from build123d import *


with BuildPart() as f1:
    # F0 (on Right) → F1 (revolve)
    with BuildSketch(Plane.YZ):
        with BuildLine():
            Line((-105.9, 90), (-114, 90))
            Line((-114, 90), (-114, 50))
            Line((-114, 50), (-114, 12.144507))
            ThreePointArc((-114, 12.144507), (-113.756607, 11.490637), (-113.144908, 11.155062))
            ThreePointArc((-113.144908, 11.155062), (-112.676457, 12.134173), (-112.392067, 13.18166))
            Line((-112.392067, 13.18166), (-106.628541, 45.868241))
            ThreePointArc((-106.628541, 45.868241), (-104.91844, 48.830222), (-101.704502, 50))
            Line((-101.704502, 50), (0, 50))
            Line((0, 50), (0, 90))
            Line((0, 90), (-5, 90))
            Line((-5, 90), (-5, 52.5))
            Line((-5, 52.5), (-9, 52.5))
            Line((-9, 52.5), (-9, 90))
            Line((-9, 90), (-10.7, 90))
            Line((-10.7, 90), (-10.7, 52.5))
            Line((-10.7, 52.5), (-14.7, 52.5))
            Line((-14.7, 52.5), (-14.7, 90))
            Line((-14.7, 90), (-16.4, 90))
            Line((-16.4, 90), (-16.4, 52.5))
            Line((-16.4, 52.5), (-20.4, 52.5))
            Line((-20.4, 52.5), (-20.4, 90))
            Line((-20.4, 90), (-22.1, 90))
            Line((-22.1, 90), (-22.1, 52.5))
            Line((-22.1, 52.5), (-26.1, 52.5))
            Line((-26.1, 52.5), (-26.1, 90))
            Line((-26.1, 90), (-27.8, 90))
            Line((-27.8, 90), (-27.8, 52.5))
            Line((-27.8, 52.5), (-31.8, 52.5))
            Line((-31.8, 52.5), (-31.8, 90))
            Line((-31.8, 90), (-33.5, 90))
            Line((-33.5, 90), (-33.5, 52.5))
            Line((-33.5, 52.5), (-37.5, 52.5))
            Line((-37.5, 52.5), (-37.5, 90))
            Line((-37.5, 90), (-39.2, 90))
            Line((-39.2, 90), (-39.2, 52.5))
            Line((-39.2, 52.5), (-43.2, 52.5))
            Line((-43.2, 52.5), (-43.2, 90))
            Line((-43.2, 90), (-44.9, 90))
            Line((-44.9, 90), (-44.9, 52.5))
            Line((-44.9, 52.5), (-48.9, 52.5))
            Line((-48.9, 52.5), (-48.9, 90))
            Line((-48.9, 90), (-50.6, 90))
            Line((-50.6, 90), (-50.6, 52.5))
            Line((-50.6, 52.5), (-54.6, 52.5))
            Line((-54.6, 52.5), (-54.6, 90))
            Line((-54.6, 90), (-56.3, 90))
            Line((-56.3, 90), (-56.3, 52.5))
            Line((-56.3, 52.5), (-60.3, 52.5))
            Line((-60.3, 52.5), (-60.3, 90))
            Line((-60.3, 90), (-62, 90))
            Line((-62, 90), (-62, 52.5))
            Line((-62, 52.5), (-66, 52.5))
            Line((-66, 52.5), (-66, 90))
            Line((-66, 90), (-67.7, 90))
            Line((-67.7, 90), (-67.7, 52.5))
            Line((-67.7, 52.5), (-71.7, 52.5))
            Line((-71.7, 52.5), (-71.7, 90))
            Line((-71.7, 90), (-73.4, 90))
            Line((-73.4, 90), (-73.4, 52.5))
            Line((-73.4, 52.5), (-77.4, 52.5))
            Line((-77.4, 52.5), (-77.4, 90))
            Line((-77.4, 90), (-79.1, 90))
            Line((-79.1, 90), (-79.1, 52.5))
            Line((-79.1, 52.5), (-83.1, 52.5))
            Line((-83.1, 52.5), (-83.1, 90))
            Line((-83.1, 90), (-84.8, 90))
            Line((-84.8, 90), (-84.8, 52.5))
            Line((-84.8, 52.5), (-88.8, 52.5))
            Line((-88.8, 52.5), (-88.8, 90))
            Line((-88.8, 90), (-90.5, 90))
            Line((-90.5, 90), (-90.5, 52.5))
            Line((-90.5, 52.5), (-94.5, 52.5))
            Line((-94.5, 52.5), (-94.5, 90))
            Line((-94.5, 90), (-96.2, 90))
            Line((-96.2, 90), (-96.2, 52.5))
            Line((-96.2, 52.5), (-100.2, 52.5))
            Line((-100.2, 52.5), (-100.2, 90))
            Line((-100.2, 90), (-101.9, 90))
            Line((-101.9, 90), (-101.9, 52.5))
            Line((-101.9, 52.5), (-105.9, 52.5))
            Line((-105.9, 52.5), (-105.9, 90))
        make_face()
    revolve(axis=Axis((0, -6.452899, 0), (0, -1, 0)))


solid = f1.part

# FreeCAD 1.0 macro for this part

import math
import FreeCAD as App
import Part
import Sketcher
from FreeCAD import Vector
Q = App.Units.Quantity

doc = App.newDocument("Part")
body = doc.addObject("PartDesign::Body", "Body")

sketch1 = body.newObject("Sketcher::SketchObject", "Sketch")
sketch1.AttachmentSupport = (doc.getObject("YZ_Plane"), [""])
sketch1.MapMode = "FlatFace"
sketch1.addGeometry(Part.LineSegment(Vector(-105.9, 90, 0), Vector(-114, 90, 0)), False)
sketch1.addGeometry(Part.LineSegment(Vector(-114, 90, 0), Vector(-114, 12.1, 0)), False)
sketch1.addGeometry(Part.ArcOfCircle(Part.Circle(Vector(-113, 12.1, 0), Vector(0, 0, 1), 1), math.radians(180), math.radians(262)), False)
sketch1.addGeometry(Part.ArcOfCircle(Part.Circle(Vector(-118.3, 14.2, 0), Vector(0, 0, 1), 6), math.radians(-31), math.radians(-10)), False)
sketch1.addGeometry(Part.LineSegment(Vector(-112.4, 13.2, 0), Vector(-106.6, 45.9, 0)), False)
sketch1.addGeometry(Part.ArcOfCircle(Part.Circle(Vector(-101.7, 45, 0), Vector(0, 0, 1), 5), math.radians(90), math.radians(170)), False)
sketch1.addGeometry(Part.LineSegment(Vector(-101.7, 50, 0), Vector(0, 50, 0)), False)
sketch1.addGeometry(Part.LineSegment(Vector(0, 50, 0), Vector(0, 90, 0)), False)
sketch1.addGeometry(Part.LineSegment(Vector(0, 90, 0), Vector(-5, 90, 0)), False)
sketch1.addGeometry(Part.LineSegment(Vector(-5, 90, 0), Vector(-5, 52.5, 0)), False)
sketch1.addGeometry(Part.LineSegment(Vector(-5, 52.5, 0), Vector(-9, 52.5, 0)), False)
sketch1.addGeometry(Part.LineSegment(Vector(-9, 52.5, 0), Vector(-9, 90, 0)), False)
sketch1.addGeometry(Part.LineSegment(Vector(-9, 90, 0), Vector(-10.7, 90, 0)), False)
sketch1.addGeometry(Part.LineSegment(Vector(-10.7, 90, 0), Vector(-10.7, 52.5, 0)), False)
sketch1.addGeometry(Part.LineSegment(Vector(-10.7, 52.5, 0), Vector(-14.7, 52.5, 0)), False)
sketch1.addGeometry(Part.LineSegment(Vector(-14.7, 52.5, 0), Vector(-14.7, 90, 0)), False)
sketch1.addGeometry(Part.LineSegment(Vector(-14.7, 90, 0), Vector(-16.4, 90, 0)), False)
sketch1.addGeometry(Part.LineSegment(Vector(-16.4, 90, 0), Vector(-16.4, 52.5, 0)), False)
sketch1.addGeometry(Part.LineSegment(Vector(-16.4, 52.5, 0), Vector(-20.4, 52.5, 0)), False)
sketch1.addGeometry(Part.LineSegment(Vector(-20.4, 52.5, 0), Vector(-20.4, 90, 0)), False)
sketch1.addGeometry(Part.LineSegment(Vector(-20.4, 90, 0), Vector(-22.1, 90, 0)), False)
sketch1.addGeometry(Part.LineSegment(Vector(-22.1, 90, 0), Vector(-22.1, 52.5, 0)), False)
sketch1.addGeometry(Part.LineSegment(Vector(-22.1, 52.5, 0), Vector(-26.1, 52.5, 0)), False)
sketch1.addGeometry(Part.LineSegment(Vector(-26.1, 52.5, 0), Vector(-26.1, 90, 0)), False)
sketch1.addGeometry(Part.LineSegment(Vector(-26.1, 90, 0), Vector(-27.8, 90, 0)), False)
sketch1.addGeometry(Part.LineSegment(Vector(-27.8, 90, 0), Vector(-27.8, 52.5, 0)), False)
sketch1.addGeometry(Part.LineSegment(Vector(-27.8, 52.5, 0), Vector(-31.8, 52.5, 0)), False)
sketch1.addGeometry(Part.LineSegment(Vector(-31.8, 52.5, 0), Vector(-31.8, 90, 0)), False)
sketch1.addGeometry(Part.LineSegment(Vector(-31.8, 90, 0), Vector(-33.5, 90, 0)), False)
sketch1.addGeometry(Part.LineSegment(Vector(-33.5, 90, 0), Vector(-33.5, 52.5, 0)), False)
sketch1.addGeometry(Part.LineSegment(Vector(-33.5, 52.5, 0), Vector(-37.5, 52.5, 0)), False)
sketch1.addGeometry(Part.LineSegment(Vector(-37.5, 52.5, 0), Vector(-37.5, 90, 0)), False)
sketch1.addGeometry(Part.LineSegment(Vector(-37.5, 90, 0), Vector(-39.2, 90, 0)), False)
sketch1.addGeometry(Part.LineSegment(Vector(-39.2, 90, 0), Vector(-39.2, 52.5, 0)), False)
sketch1.addGeometry(Part.LineSegment(Vector(-39.2, 52.5, 0), Vector(-43.2, 52.5, 0)), False)
sketch1.addGeometry(Part.LineSegment(Vector(-43.2, 52.5, 0), Vector(-43.2, 90, 0)), False)
sketch1.addGeometry(Part.LineSegment(Vector(-43.2, 90, 0), Vector(-44.9, 90, 0)), False)
sketch1.addGeometry(Part.LineSegment(Vector(-44.9, 90, 0), Vector(-44.9, 52.5, 0)), False)
sketch1.addGeometry(Part.LineSegment(Vector(-44.9, 52.5, 0), Vector(-48.9, 52.5, 0)), False)
sketch1.addGeometry(Part.LineSegment(Vector(-48.9, 52.5, 0), Vector(-48.9, 90, 0)), False)
sketch1.addGeometry(Part.LineSegment(Vector(-48.9, 90, 0), Vector(-50.6, 90, 0)), False)
sketch1.addGeometry(Part.LineSegment(Vector(-50.6, 90, 0), Vector(-50.6, 52.5, 0)), False)
sketch1.addGeometry(Part.LineSegment(Vector(-50.6, 52.5, 0), Vector(-54.6, 52.5, 0)), False)
sketch1.addGeometry(Part.LineSegment(Vector(-54.6, 52.5, 0), Vector(-54.6, 90, 0)), False)
sketch1.addGeometry(Part.LineSegment(Vector(-54.6, 90, 0), Vector(-56.3, 90, 0)), False)
sketch1.addGeometry(Part.LineSegment(Vector(-56.3, 90, 0), Vector(-56.3, 52.5, 0)), False)
sketch1.addGeometry(Part.LineSegment(Vector(-56.3, 52.5, 0), Vector(-60.3, 52.5, 0)), False)
sketch1.addGeometry(Part.LineSegment(Vector(-60.3, 52.5, 0), Vector(-60.3, 90, 0)), False)
sketch1.addGeometry(Part.LineSegment(Vector(-60.3, 90, 0), Vector(-62, 90, 0)), False)
sketch1.addGeometry(Part.LineSegment(Vector(-62, 90, 0), Vector(-62, 52.5, 0)), False)
sketch1.addGeometry(Part.LineSegment(Vector(-62, 52.5, 0), Vector(-66, 52.5, 0)), False)
sketch1.addGeometry(Part.LineSegment(Vector(-66, 52.5, 0), Vector(-66, 90, 0)), False)
sketch1.addGeometry(Part.LineSegment(Vector(-66, 90, 0), Vector(-67.7, 90, 0)), False)
sketch1.addGeometry(Part.LineSegment(Vector(-67.7, 90, 0), Vector(-67.7, 52.5, 0)), False)
sketch1.addGeometry(Part.LineSegment(Vector(-67.7, 52.5, 0), Vector(-71.7, 52.5, 0)), False)
sketch1.addGeometry(Part.LineSegment(Vector(-71.7, 52.5, 0), Vector(-71.7, 90, 0)), False)
sketch1.addGeometry(Part.LineSegment(Vector(-71.7, 90, 0), Vector(-73.4, 90, 0)), False)
sketch1.addGeometry(Part.LineSegment(Vector(-73.4, 90, 0), Vector(-73.4, 52.5, 0)), False)
sketch1.addGeometry(Part.LineSegment(Vector(-73.4, 52.5, 0), Vector(-77.4, 52.5, 0)), False)
sketch1.addGeometry(Part.LineSegment(Vector(-77.4, 52.5, 0), Vector(-77.4, 90, 0)), False)
sketch1.addGeometry(Part.LineSegment(Vector(-77.4, 90, 0), Vector(-79.1, 90, 0)), False)
sketch1.addGeometry(Part.LineSegment(Vector(-79.1, 90, 0), Vector(-79.1, 52.5, 0)), False)
sketch1.addGeometry(Part.LineSegment(Vector(-79.1, 52.5, 0), Vector(-83.1, 52.5, 0)), False)
sketch1.addGeometry(Part.LineSegment(Vector(-83.1, 52.5, 0), Vector(-83.1, 90, 0)), False)
sketch1.addGeometry(Part.LineSegment(Vector(-83.1, 90, 0), Vector(-84.8, 90, 0)), False)
sketch1.addGeometry(Part.LineSegment(Vector(-84.8, 90, 0), Vector(-84.8, 52.5, 0)), False)
sketch1.addGeometry(Part.LineSegment(Vector(-84.8, 52.5, 0), Vector(-88.8, 52.5, 0)), False)
sketch1.addGeometry(Part.LineSegment(Vector(-88.8, 52.5, 0), Vector(-88.8, 90, 0)), False)
sketch1.addGeometry(Part.LineSegment(Vector(-88.8, 90, 0), Vector(-90.5, 90, 0)), False)
sketch1.addGeometry(Part.LineSegment(Vector(-90.5, 90, 0), Vector(-90.5, 52.5, 0)), False)
sketch1.addGeometry(Part.LineSegment(Vector(-90.5, 52.5, 0), Vector(-94.5, 52.5, 0)), False)
sketch1.addGeometry(Part.LineSegment(Vector(-94.5, 52.5, 0), Vector(-94.5, 90, 0)), False)
sketch1.addGeometry(Part.LineSegment(Vector(-94.5, 90, 0), Vector(-96.2, 90, 0)), False)
sketch1.addGeometry(Part.LineSegment(Vector(-96.2, 90, 0), Vector(-96.2, 52.5, 0)), False)
sketch1.addGeometry(Part.LineSegment(Vector(-96.2, 52.5, 0), Vector(-100.2, 52.5, 0)), False)
sketch1.addGeometry(Part.LineSegment(Vector(-100.2, 52.5, 0), Vector(-100.2, 90, 0)), False)
sketch1.addGeometry(Part.LineSegment(Vector(-100.2, 90, 0), Vector(-101.9, 90, 0)), False)
sketch1.addGeometry(Part.LineSegment(Vector(-101.9, 90, 0), Vector(-101.9, 52.5, 0)), False)
sketch1.addGeometry(Part.LineSegment(Vector(-101.9, 52.5, 0), Vector(-105.9, 52.5, 0)), False)
sketch1.addGeometry(Part.LineSegment(Vector(-105.9, 52.5, 0), Vector(-105.9, 90, 0)), False)
sketch1.addConstraint(Sketcher.Constraint("Coincident", 0, 2, 1, 1))
sketch1.addConstraint(Sketcher.Constraint("Tangent", 1, 2, 2, 1))
sketch1.addConstraint(Sketcher.Constraint("Coincident", 2, 2, 3, 1))
sketch1.addConstraint(Sketcher.Constraint("Tangent", 3, 2, 4, 1))
sketch1.addConstraint(Sketcher.Constraint("Tangent", 4, 2, 5, 2))
sketch1.addConstraint(Sketcher.Constraint("Tangent", 5, 1, 6, 1))
sketch1.addConstraint(Sketcher.Constraint("Coincident", 6, 2, 7, 1))
sketch1.addConstraint(Sketcher.Constraint("Coincident", 7, 2, 8, 1))
sketch1.addConstraint(Sketcher.Constraint("Coincident", 8, 2, 9, 1))
sketch1.addConstraint(Sketcher.Constraint("Coincident", 9, 2, 10, 1))
sketch1.addConstraint(Sketcher.Constraint("Coincident", 10, 2, 11, 1))
sketch1.addConstraint(Sketcher.Constraint("Coincident", 11, 2, 12, 1))
sketch1.addConstraint(Sketcher.Constraint("Coincident", 12, 2, 13, 1))
sketch1.addConstraint(Sketcher.Constraint("Coincident", 13, 2, 14, 1))
sketch1.addConstraint(Sketcher.Constraint("Coincident", 14, 2, 15, 1))
sketch1.addConstraint(Sketcher.Constraint("Coincident", 15, 2, 16, 1))
sketch1.addConstraint(Sketcher.Constraint("Coincident", 16, 2, 17, 1))
sketch1.addConstraint(Sketcher.Constraint("Coincident", 17, 2, 18, 1))
sketch1.addConstraint(Sketcher.Constraint("Coincident", 18, 2, 19, 1))
sketch1.addConstraint(Sketcher.Constraint("Coincident", 19, 2, 20, 1))
sketch1.addConstraint(Sketcher.Constraint("Coincident", 20, 2, 21, 1))
sketch1.addConstraint(Sketcher.Constraint("Coincident", 21, 2, 22, 1))
sketch1.addConstraint(Sketcher.Constraint("Coincident", 22, 2, 23, 1))
sketch1.addConstraint(Sketcher.Constraint("Coincident", 23, 2, 24, 1))
sketch1.addConstraint(Sketcher.Constraint("Coincident", 24, 2, 25, 1))
sketch1.addConstraint(Sketcher.Constraint("Coincident", 25, 2, 26, 1))
sketch1.addConstraint(Sketcher.Constraint("Coincident", 26, 2, 27, 1))
sketch1.addConstraint(Sketcher.Constraint("Coincident", 27, 2, 28, 1))
sketch1.addConstraint(Sketcher.Constraint("Coincident", 28, 2, 29, 1))
sketch1.addConstraint(Sketcher.Constraint("Coincident", 29, 2, 30, 1))
sketch1.addConstraint(Sketcher.Constraint("Coincident", 30, 2, 31, 1))
sketch1.addConstraint(Sketcher.Constraint("Coincident", 31, 2, 32, 1))
sketch1.addConstraint(Sketcher.Constraint("Coincident", 32, 2, 33, 1))
sketch1.addConstraint(Sketcher.Constraint("Coincident", 33, 2, 34, 1))
sketch1.addConstraint(Sketcher.Constraint("Coincident", 34, 2, 35, 1))
sketch1.addConstraint(Sketcher.Constraint("Coincident", 35, 2, 36, 1))
sketch1.addConstraint(Sketcher.Constraint("Coincident", 36, 2, 37, 1))
sketch1.addConstraint(Sketcher.Constraint("Coincident", 37, 2, 38, 1))
sketch1.addConstraint(Sketcher.Constraint("Coincident", 38, 2, 39, 1))
sketch1.addConstraint(Sketcher.Constraint("Coincident", 39, 2, 40, 1))
sketch1.addConstraint(Sketcher.Constraint("Coincident", 40, 2, 41, 1))
sketch1.addConstraint(Sketcher.Constraint("Coincident", 41, 2, 42, 1))
sketch1.addConstraint(Sketcher.Constraint("Coincident", 42, 2, 43, 1))
sketch1.addConstraint(Sketcher.Constraint("Coincident", 43, 2, 44, 1))
sketch1.addConstraint(Sketcher.Constraint("Coincident", 44, 2, 45, 1))
sketch1.addConstraint(Sketcher.Constraint("Coincident", 45, 2, 46, 1))
sketch1.addConstraint(Sketcher.Constraint("Coincident", 46, 2, 47, 1))
sketch1.addConstraint(Sketcher.Constraint("Coincident", 47, 2, 48, 1))
sketch1.addConstraint(Sketcher.Constraint("Coincident", 48, 2, 49, 1))
sketch1.addConstraint(Sketcher.Constraint("Coincident", 49, 2, 50, 1))
sketch1.addConstraint(Sketcher.Constraint("Coincident", 50, 2, 51, 1))
sketch1.addConstraint(Sketcher.Constraint("Coincident", 51, 2, 52, 1))
sketch1.addConstraint(Sketcher.Constraint("Coincident", 52, 2, 53, 1))
sketch1.addConstraint(Sketcher.Constraint("Coincident", 53, 2, 54, 1))
sketch1.addConstraint(Sketcher.Constraint("Coincident", 54, 2, 55, 1))
sketch1.addConstraint(Sketcher.Constraint("Coincident", 55, 2, 56, 1))
sketch1.addConstraint(Sketcher.Constraint("Coincident", 56, 2, 57, 1))
sketch1.addConstraint(Sketcher.Constraint("Coincident", 57, 2, 58, 1))
sketch1.addConstraint(Sketcher.Constraint("Coincident", 58, 2, 59, 1))
sketch1.addConstraint(Sketcher.Constraint("Coincident", 59, 2, 60, 1))
sketch1.addConstraint(Sketcher.Constraint("Coincident", 60, 2, 61, 1))
sketch1.addConstraint(Sketcher.Constraint("Coincident", 61, 2, 62, 1))
sketch1.addConstraint(Sketcher.Constraint("Coincident", 62, 2, 63, 1))
sketch1.addConstraint(Sketcher.Constraint("Coincident", 63, 2, 64, 1))
sketch1.addConstraint(Sketcher.Constraint("Coincident", 64, 2, 65, 1))
sketch1.addConstraint(Sketcher.Constraint("Coincident", 65, 2, 66, 1))
sketch1.addConstraint(Sketcher.Constraint("Coincident", 66, 2, 67, 1))
sketch1.addConstraint(Sketcher.Constraint("Coincident", 67, 2, 68, 1))
sketch1.addConstraint(Sketcher.Constraint("Coincident", 68, 2, 69, 1))
sketch1.addConstraint(Sketcher.Constraint("Coincident", 69, 2, 70, 1))
sketch1.addConstraint(Sketcher.Constraint("Coincident", 70, 2, 71, 1))
sketch1.addConstraint(Sketcher.Constraint("Coincident", 71, 2, 72, 1))
sketch1.addConstraint(Sketcher.Constraint("Coincident", 72, 2, 73, 1))
sketch1.addConstraint(Sketcher.Constraint("Coincident", 73, 2, 74, 1))
sketch1.addConstraint(Sketcher.Constraint("Coincident", 74, 2, 75, 1))
sketch1.addConstraint(Sketcher.Constraint("Coincident", 75, 2, 76, 1))
sketch1.addConstraint(Sketcher.Constraint("Coincident", 76, 2, 77, 1))
sketch1.addConstraint(Sketcher.Constraint("Coincident", 77, 2, 78, 1))
sketch1.addConstraint(Sketcher.Constraint("Coincident", 78, 2, 79, 1))
sketch1.addConstraint(Sketcher.Constraint("Coincident", 79, 2, 0, 1))
sketch1.addConstraint(Sketcher.Constraint("Horizontal", 0))
sketch1.addConstraint(Sketcher.Constraint("Vertical", 1))
sketch1.addConstraint(Sketcher.Constraint("Horizontal", 6))
sketch1.addConstraint(Sketcher.Constraint("Vertical", 7))
sketch1.addConstraint(Sketcher.Constraint("Horizontal", 8))
sketch1.addConstraint(Sketcher.Constraint("Vertical", 9))
sketch1.addConstraint(Sketcher.Constraint("Horizontal", 10))
sketch1.addConstraint(Sketcher.Constraint("Vertical", 11))
sketch1.addConstraint(Sketcher.Constraint("Horizontal", 12))
sketch1.addConstraint(Sketcher.Constraint("Vertical", 13))
sketch1.addConstraint(Sketcher.Constraint("Horizontal", 14))
sketch1.addConstraint(Sketcher.Constraint("Vertical", 15))
sketch1.addConstraint(Sketcher.Constraint("Horizontal", 16))
sketch1.addConstraint(Sketcher.Constraint("Vertical", 17))
sketch1.addConstraint(Sketcher.Constraint("Horizontal", 18))
sketch1.addConstraint(Sketcher.Constraint("Vertical", 19))
sketch1.addConstraint(Sketcher.Constraint("Horizontal", 20))
sketch1.addConstraint(Sketcher.Constraint("Vertical", 21))
sketch1.addConstraint(Sketcher.Constraint("Horizontal", 22))
sketch1.addConstraint(Sketcher.Constraint("Vertical", 23))
sketch1.addConstraint(Sketcher.Constraint("Horizontal", 24))
sketch1.addConstraint(Sketcher.Constraint("Vertical", 25))
sketch1.addConstraint(Sketcher.Constraint("Horizontal", 26))
sketch1.addConstraint(Sketcher.Constraint("Vertical", 27))
sketch1.addConstraint(Sketcher.Constraint("Horizontal", 28))
sketch1.addConstraint(Sketcher.Constraint("Vertical", 29))
sketch1.addConstraint(Sketcher.Constraint("Horizontal", 30))
sketch1.addConstraint(Sketcher.Constraint("Vertical", 31))
sketch1.addConstraint(Sketcher.Constraint("Horizontal", 32))
sketch1.addConstraint(Sketcher.Constraint("Vertical", 33))
sketch1.addConstraint(Sketcher.Constraint("Horizontal", 34))
sketch1.addConstraint(Sketcher.Constraint("Vertical", 35))
sketch1.addConstraint(Sketcher.Constraint("Horizontal", 36))
sketch1.addConstraint(Sketcher.Constraint("Vertical", 37))
sketch1.addConstraint(Sketcher.Constraint("Horizontal", 38))
sketch1.addConstraint(Sketcher.Constraint("Vertical", 39))
sketch1.addConstraint(Sketcher.Constraint("Horizontal", 40))
sketch1.addConstraint(Sketcher.Constraint("Vertical", 41))
sketch1.addConstraint(Sketcher.Constraint("Horizontal", 42))
sketch1.addConstraint(Sketcher.Constraint("Vertical", 43))
sketch1.addConstraint(Sketcher.Constraint("Horizontal", 44))
sketch1.addConstraint(Sketcher.Constraint("Vertical", 45))
sketch1.addConstraint(Sketcher.Constraint("Horizontal", 46))
sketch1.addConstraint(Sketcher.Constraint("Vertical", 47))
sketch1.addConstraint(Sketcher.Constraint("Horizontal", 48))
sketch1.addConstraint(Sketcher.Constraint("Vertical", 49))
sketch1.addConstraint(Sketcher.Constraint("Horizontal", 50))
sketch1.addConstraint(Sketcher.Constraint("Vertical", 51))
sketch1.addConstraint(Sketcher.Constraint("Horizontal", 52))
sketch1.addConstraint(Sketcher.Constraint("Vertical", 53))
sketch1.addConstraint(Sketcher.Constraint("Horizontal", 54))
sketch1.addConstraint(Sketcher.Constraint("Vertical", 55))
sketch1.addConstraint(Sketcher.Constraint("Horizontal", 56))
sketch1.addConstraint(Sketcher.Constraint("Vertical", 57))
sketch1.addConstraint(Sketcher.Constraint("Horizontal", 58))
sketch1.addConstraint(Sketcher.Constraint("Vertical", 59))
sketch1.addConstraint(Sketcher.Constraint("Horizontal", 60))
sketch1.addConstraint(Sketcher.Constraint("Vertical", 61))
sketch1.addConstraint(Sketcher.Constraint("Horizontal", 62))
sketch1.addConstraint(Sketcher.Constraint("Vertical", 63))
sketch1.addConstraint(Sketcher.Constraint("Horizontal", 64))
sketch1.addConstraint(Sketcher.Constraint("Vertical", 65))
sketch1.addConstraint(Sketcher.Constraint("Horizontal", 66))
sketch1.addConstraint(Sketcher.Constraint("Vertical", 67))
sketch1.addConstraint(Sketcher.Constraint("Horizontal", 68))
sketch1.addConstraint(Sketcher.Constraint("Vertical", 69))
sketch1.addConstraint(Sketcher.Constraint("Horizontal", 70))
sketch1.addConstraint(Sketcher.Constraint("Vertical", 71))
sketch1.addConstraint(Sketcher.Constraint("Horizontal", 72))
sketch1.addConstraint(Sketcher.Constraint("Vertical", 73))
sketch1.addConstraint(Sketcher.Constraint("Horizontal", 74))
sketch1.addConstraint(Sketcher.Constraint("Vertical", 75))
sketch1.addConstraint(Sketcher.Constraint("Horizontal", 76))
sketch1.addConstraint(Sketcher.Constraint("Vertical", 77))
sketch1.addConstraint(Sketcher.Constraint("Horizontal", 78))
sketch1.addConstraint(Sketcher.Constraint("Vertical", 79))
sketch1.addConstraint(Sketcher.Constraint("PointOnObject", 6, 2, -2))
sketch1.addConstraint(Sketcher.Constraint("Horizontal", 0, 2, 7, 2))
sketch1.addConstraint(Sketcher.Constraint("Horizontal", 8, 2, 11, 2))
sketch1.addConstraint(Sketcher.Constraint("Horizontal", 10, 2, 13, 2))
sketch1.addConstraint(Sketcher.Constraint("Horizontal", 12, 2, 15, 2))
sketch1.addConstraint(Sketcher.Constraint("Horizontal", 14, 2, 17, 2))
sketch1.addConstraint(Sketcher.Constraint("Horizontal", 16, 2, 19, 2))
sketch1.addConstraint(Sketcher.Constraint("Horizontal", 18, 2, 21, 2))
sketch1.addConstraint(Sketcher.Constraint("Horizontal", 20, 2, 23, 2))
sketch1.addConstraint(Sketcher.Constraint("Horizontal", 22, 2, 25, 2))
sketch1.addConstraint(Sketcher.Constraint("Horizontal", 24, 2, 27, 2))
sketch1.addConstraint(Sketcher.Constraint("Horizontal", 26, 2, 29, 2))
sketch1.addConstraint(Sketcher.Constraint("Horizontal", 28, 2, 31, 2))
sketch1.addConstraint(Sketcher.Constraint("Horizontal", 30, 2, 33, 2))
sketch1.addConstraint(Sketcher.Constraint("Horizontal", 32, 2, 35, 2))
sketch1.addConstraint(Sketcher.Constraint("Horizontal", 34, 2, 37, 2))
sketch1.addConstraint(Sketcher.Constraint("Horizontal", 36, 2, 39, 2))
sketch1.addConstraint(Sketcher.Constraint("Horizontal", 38, 2, 41, 2))
sketch1.addConstraint(Sketcher.Constraint("Horizontal", 40, 2, 43, 2))
sketch1.addConstraint(Sketcher.Constraint("Horizontal", 42, 2, 45, 2))
sketch1.addConstraint(Sketcher.Constraint("Horizontal", 44, 2, 47, 2))
sketch1.addConstraint(Sketcher.Constraint("Horizontal", 46, 2, 49, 2))
sketch1.addConstraint(Sketcher.Constraint("Horizontal", 48, 2, 51, 2))
sketch1.addConstraint(Sketcher.Constraint("Horizontal", 50, 2, 53, 2))
sketch1.addConstraint(Sketcher.Constraint("Horizontal", 52, 2, 55, 2))
sketch1.addConstraint(Sketcher.Constraint("Horizontal", 54, 2, 57, 2))
sketch1.addConstraint(Sketcher.Constraint("Horizontal", 56, 2, 59, 2))
sketch1.addConstraint(Sketcher.Constraint("Horizontal", 58, 2, 61, 2))
sketch1.addConstraint(Sketcher.Constraint("Horizontal", 60, 2, 63, 2))
sketch1.addConstraint(Sketcher.Constraint("Horizontal", 62, 2, 65, 2))
sketch1.addConstraint(Sketcher.Constraint("Horizontal", 64, 2, 67, 2))
sketch1.addConstraint(Sketcher.Constraint("Horizontal", 66, 2, 69, 2))
sketch1.addConstraint(Sketcher.Constraint("Horizontal", 68, 2, 71, 2))
sketch1.addConstraint(Sketcher.Constraint("Horizontal", 70, 2, 73, 2))
sketch1.addConstraint(Sketcher.Constraint("Horizontal", 72, 2, 75, 2))
sketch1.addConstraint(Sketcher.Constraint("Horizontal", 74, 2, 77, 2))
sketch1.addConstraint(Sketcher.Constraint("Equal", 10, 14))
sketch1.addConstraint(Sketcher.Constraint("Equal", 12, 16))
sketch1.addConstraint(Sketcher.Constraint("Equal", 14, 18))
sketch1.addConstraint(Sketcher.Constraint("Equal", 16, 20))
sketch1.addConstraint(Sketcher.Constraint("Equal", 18, 22))
sketch1.addConstraint(Sketcher.Constraint("Equal", 20, 24))
sketch1.addConstraint(Sketcher.Constraint("Equal", 22, 26))
sketch1.addConstraint(Sketcher.Constraint("Equal", 24, 28))
sketch1.addConstraint(Sketcher.Constraint("Equal", 26, 30))
sketch1.addConstraint(Sketcher.Constraint("Equal", 28, 32))
sketch1.addConstraint(Sketcher.Constraint("Equal", 30, 34))
sketch1.addConstraint(Sketcher.Constraint("Equal", 32, 36))
sketch1.addConstraint(Sketcher.Constraint("Equal", 34, 38))
sketch1.addConstraint(Sketcher.Constraint("Equal", 36, 40))
sketch1.addConstraint(Sketcher.Constraint("Equal", 38, 42))
sketch1.addConstraint(Sketcher.Constraint("Equal", 40, 44))
sketch1.addConstraint(Sketcher.Constraint("Equal", 42, 46))
sketch1.addConstraint(Sketcher.Constraint("Equal", 44, 48))
sketch1.addConstraint(Sketcher.Constraint("Equal", 46, 50))
sketch1.addConstraint(Sketcher.Constraint("Equal", 48, 52))
sketch1.addConstraint(Sketcher.Constraint("Equal", 50, 54))
sketch1.addConstraint(Sketcher.Constraint("Equal", 52, 56))
sketch1.addConstraint(Sketcher.Constraint("Equal", 54, 58))
sketch1.addConstraint(Sketcher.Constraint("Equal", 56, 60))
sketch1.addConstraint(Sketcher.Constraint("Equal", 58, 62))
sketch1.addConstraint(Sketcher.Constraint("Equal", 60, 64))
sketch1.addConstraint(Sketcher.Constraint("Equal", 62, 66))
sketch1.addConstraint(Sketcher.Constraint("Equal", 64, 68))
sketch1.addConstraint(Sketcher.Constraint("Equal", 66, 70))
sketch1.addConstraint(Sketcher.Constraint("Equal", 68, 72))
sketch1.addConstraint(Sketcher.Constraint("Equal", 70, 74))
sketch1.addConstraint(Sketcher.Constraint("Equal", 72, 76))
sketch1.addConstraint(Sketcher.Constraint("Equal", 74, 78))
sketch1.addConstraint(Sketcher.Constraint("Radius", 2, 1.0))
sketch1.addConstraint(Sketcher.Constraint("Radius", 5, 5.000001))
sketch1.addConstraint(Sketcher.Constraint("DistanceX", 8, 2, 8, 1, 5.0))
sketch1.addConstraint(Sketcher.Constraint("DistanceX", 10, 2, 10, 1, 4.0))
sketch1.addConstraint(Sketcher.Constraint("DistanceY", 7, 1, 7, 2, 40.0))
sketch1.addConstraint(Sketcher.Constraint("Angle", 4, Q("80 deg")))
sketch1.addConstraint(Sketcher.Constraint("DistanceX", 0, 2, 0, 1, 8.1))
sketch1.addConstraint(Sketcher.Constraint("DistanceX", 12, 2, 12, 1, 1.7))
sketch1.addConstraint(Sketcher.Constraint("DistanceY", 9, 2, 9, 1, 37.5))
sketch1.addConstraint(Sketcher.Constraint("DistanceY", -1, 1, 5, 3, 44.999999))
sketch1.addConstraint(Sketcher.Constraint("Radius", 3, 5.999997))
sketch1.addConstraint(Sketcher.Constraint("DistanceX", 5, 3, -1, 1, 101.704501))
sketch1.addConstraint(Sketcher.Constraint("DistanceY", 1, 2, 1, 1, 77.855493))
sketch1.addConstraint(Sketcher.Constraint("DistanceX", 3, 3, -1, 1, 118.300911))
revolution = body.newObject("PartDesign::Revolution", "Revolution")
revolution.Profile = sketch1
revolution.ReferenceAxis = (sketch1, ["H_Axis"])
revolution.Angle = 360

doc.recompute()
